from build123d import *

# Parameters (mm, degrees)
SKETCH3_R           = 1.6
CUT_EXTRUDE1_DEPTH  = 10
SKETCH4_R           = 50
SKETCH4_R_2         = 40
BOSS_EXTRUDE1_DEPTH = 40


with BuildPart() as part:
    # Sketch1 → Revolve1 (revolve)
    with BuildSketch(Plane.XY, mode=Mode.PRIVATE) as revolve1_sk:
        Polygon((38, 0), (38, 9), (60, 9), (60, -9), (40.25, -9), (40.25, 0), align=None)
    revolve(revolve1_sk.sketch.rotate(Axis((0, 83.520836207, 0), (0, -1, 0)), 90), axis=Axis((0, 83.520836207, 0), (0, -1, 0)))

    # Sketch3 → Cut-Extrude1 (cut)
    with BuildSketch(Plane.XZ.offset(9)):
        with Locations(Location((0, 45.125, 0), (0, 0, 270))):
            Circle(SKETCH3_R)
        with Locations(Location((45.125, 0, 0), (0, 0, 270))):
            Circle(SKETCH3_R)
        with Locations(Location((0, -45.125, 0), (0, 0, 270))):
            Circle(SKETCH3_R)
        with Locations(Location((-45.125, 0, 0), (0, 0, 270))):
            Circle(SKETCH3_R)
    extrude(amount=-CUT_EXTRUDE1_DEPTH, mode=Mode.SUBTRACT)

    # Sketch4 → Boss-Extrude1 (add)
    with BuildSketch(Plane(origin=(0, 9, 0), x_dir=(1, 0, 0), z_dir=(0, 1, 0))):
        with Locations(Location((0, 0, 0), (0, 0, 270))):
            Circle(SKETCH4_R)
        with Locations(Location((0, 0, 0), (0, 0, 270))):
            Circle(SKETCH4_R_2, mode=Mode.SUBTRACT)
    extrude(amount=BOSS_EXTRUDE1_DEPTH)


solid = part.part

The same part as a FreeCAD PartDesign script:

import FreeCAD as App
import Part
import Sketcher
from FreeCAD import Vector
Q = App.Units.Quantity

doc = App.newDocument("Part")
body = doc.addObject("PartDesign::Body", "Body")

# Sketch on XY plane
sketch1 = body.newObject("Sketcher::SketchObject", "Sketch")
sketch1.AttachmentSupport = (doc.getObject("XY_Plane"), [""])
sketch1.MapMode = "FlatFace"
sketch1.addGeometry(Part.LineSegment(Vector(38, 9, 0), Vector(38, 0, 0)), False)
sketch1.addGeometry(Part.LineSegment(Vector(38, 0, 0), Vector(40.25, 0, 0)), False)
sketch1.addGeometry(Part.LineSegment(Vector(40.25, 0, 0), Vector(40.25, -9, 0)), False)
sketch1.addGeometry(Part.LineSegment(Vector(40.25, -9, 0), Vector(60, -9, 0)), False)
sketch1.addGeometry(Part.LineSegment(Vector(60, -9, 0), Vector(60, 9, 0)), False)
sketch1.addGeometry(Part.LineSegment(Vector(60, 9, 0), Vector(38, 9, 0)), False)
sketch1.addConstraint(Sketcher.Constraint("Coincident", 0, 2, 1, 1))
sketch1.addConstraint(Sketcher.Constraint("Coincident", 1, 2, 2, 1))
sketch1.addConstraint(Sketcher.Constraint("Coincident", 2, 2, 3, 1))
sketch1.addConstraint(Sketcher.Constraint("Coincident", 3, 2, 4, 1))
sketch1.addConstraint(Sketcher.Constraint("Coincident", 4, 2, 5, 1))
sketch1.addConstraint(Sketcher.Constraint("Coincident", 5, 2, 0, 1))
sketch1.addConstraint(Sketcher.Constraint("Vertical", 0))
sketch1.addConstraint(Sketcher.Constraint("Horizontal", 1))
sketch1.addConstraint(Sketcher.Constraint("Vertical", 2))
sketch1.addConstraint(Sketcher.Constraint("Horizontal", 3))
sketch1.addConstraint(Sketcher.Constraint("Vertical", 4))
sketch1.addConstraint(Sketcher.Constraint("Horizontal", 5))
sketch1.addConstraint(Sketcher.Constraint("PointOnObject", 0, 2, -1))
sketch1.addConstraint(Sketcher.Constraint("Equal", 0, 2))
sketch1.addConstraint(Sketcher.Constraint("DistanceX", 5, 2, 5, 1, Q("22 mm")))
sketch1.addConstraint(Sketcher.Constraint("DistanceY", 0, 2, 0, 1, Q("9 mm")))
sketch1.addConstraint(Sketcher.Constraint("DistanceX", -1, 1, 0, 2, Q("38 mm")))
sketch1.addConstraint(Sketcher.Constraint("DistanceX", 1, 1, 1, 2, Q("2.25 mm")))
revolution = body.newObject("PartDesign::Revolution", "Revolution")
revolution.Profile = sketch1
revolution.ReferenceAxis = (sketch1, ["V_Axis"])
revolution.Angle = 360

# Sketch on XZ plane
sketch2 = body.newObject("Sketcher::SketchObject", "Sketch001")
sketch2.AttachmentSupport = (doc.getObject("XZ_Plane"), [""])
sketch2.MapMode = "FlatFace"
sketch2.AttachmentOffset = App.Placement(Vector(0, 0, 9), App.Rotation())
sketch2.addGeometry(Part.Circle(Vector(0, 45.125, 0), Vector(0, 0, 1), 1.6), False)
sketch2.addGeometry(Part.Circle(Vector(45.125, 0, 0), Vector(0, 0, 1), 1.6), False)
sketch2.addGeometry(Part.Circle(Vector(0, -45.125, 0), Vector(0, 0, 1), 1.6), False)
sketch2.addGeometry(Part.Circle(Vector(-45.125, 0, 0), Vector(0, 0, 1), 1.6), False)
sketch2.addConstraint(Sketcher.Constraint("Equal", 0, 1))
sketch2.addConstraint(Sketcher.Constraint("Equal", 1, 2))
sketch2.addConstraint(Sketcher.Constraint("Equal", 2, 3))
sketch2.addConstraint(Sketcher.Constraint("Symmetric", 0, 3, 2, 3, -1, 1))
sketch2.addConstraint(Sketcher.Constraint("Symmetric", 1, 3, 3, 3, -1, 1))
sketch2.addConstraint(Sketcher.Constraint("PointOnObject", 0, 3, -2))
sketch2.addConstraint(Sketcher.Constraint("PointOnObject", 1, 3, -1))
sketch2.addConstraint(Sketcher.Constraint("Diameter", 0, Q("3.2 mm")))
sketch2.addConstraint(Sketcher.Constraint("DistanceY", 2, 3, 0, 3, Q("90.25 mm")))
sketch2.addConstraint(Sketcher.Constraint("DistanceX", 3, 3, 1, 3, Q("90.25 mm")))
pocket1 = body.newObject("PartDesign::Pocket", "Pocket")
pocket1.Profile = sketch2
pocket1.Length = 10

# Sketch on XZ plane
sketch3 = body.newObject("Sketcher::SketchObject", "Sketch002")
sketch3.AttachmentSupport = (doc.getObject("XZ_Plane"), [""])
sketch3.MapMode = "FlatFace"
sketch3.AttachmentOffset = App.Placement(Vector(0, 0, -9), App.Rotation())
sketch3.addGeometry(Part.Circle(Vector(0, 0, 0), Vector(0, 0, 1), 50), False)
sketch3.addGeometry(Part.Circle(Vector(0, 0, 0), Vector(0, 0, 1), 40), False)
sketch3.addConstraint(Sketcher.Constraint("Coincident", 0, 3, -1, 1))
sketch3.addConstraint(Sketcher.Constraint("Coincident", 1, 3, -1, 1))
sketch3.addConstraint(Sketcher.Constraint("Diameter", 0, Q("100 mm")))
sketch3.addConstraint(Sketcher.Constraint("Diameter", 1, Q("80 mm")))
pad1 = body.newObject("PartDesign::Pad", "Pad")
pad1.Profile = sketch3
pad1.Length = 40
pad1.Reversed = True

doc.recompute()
